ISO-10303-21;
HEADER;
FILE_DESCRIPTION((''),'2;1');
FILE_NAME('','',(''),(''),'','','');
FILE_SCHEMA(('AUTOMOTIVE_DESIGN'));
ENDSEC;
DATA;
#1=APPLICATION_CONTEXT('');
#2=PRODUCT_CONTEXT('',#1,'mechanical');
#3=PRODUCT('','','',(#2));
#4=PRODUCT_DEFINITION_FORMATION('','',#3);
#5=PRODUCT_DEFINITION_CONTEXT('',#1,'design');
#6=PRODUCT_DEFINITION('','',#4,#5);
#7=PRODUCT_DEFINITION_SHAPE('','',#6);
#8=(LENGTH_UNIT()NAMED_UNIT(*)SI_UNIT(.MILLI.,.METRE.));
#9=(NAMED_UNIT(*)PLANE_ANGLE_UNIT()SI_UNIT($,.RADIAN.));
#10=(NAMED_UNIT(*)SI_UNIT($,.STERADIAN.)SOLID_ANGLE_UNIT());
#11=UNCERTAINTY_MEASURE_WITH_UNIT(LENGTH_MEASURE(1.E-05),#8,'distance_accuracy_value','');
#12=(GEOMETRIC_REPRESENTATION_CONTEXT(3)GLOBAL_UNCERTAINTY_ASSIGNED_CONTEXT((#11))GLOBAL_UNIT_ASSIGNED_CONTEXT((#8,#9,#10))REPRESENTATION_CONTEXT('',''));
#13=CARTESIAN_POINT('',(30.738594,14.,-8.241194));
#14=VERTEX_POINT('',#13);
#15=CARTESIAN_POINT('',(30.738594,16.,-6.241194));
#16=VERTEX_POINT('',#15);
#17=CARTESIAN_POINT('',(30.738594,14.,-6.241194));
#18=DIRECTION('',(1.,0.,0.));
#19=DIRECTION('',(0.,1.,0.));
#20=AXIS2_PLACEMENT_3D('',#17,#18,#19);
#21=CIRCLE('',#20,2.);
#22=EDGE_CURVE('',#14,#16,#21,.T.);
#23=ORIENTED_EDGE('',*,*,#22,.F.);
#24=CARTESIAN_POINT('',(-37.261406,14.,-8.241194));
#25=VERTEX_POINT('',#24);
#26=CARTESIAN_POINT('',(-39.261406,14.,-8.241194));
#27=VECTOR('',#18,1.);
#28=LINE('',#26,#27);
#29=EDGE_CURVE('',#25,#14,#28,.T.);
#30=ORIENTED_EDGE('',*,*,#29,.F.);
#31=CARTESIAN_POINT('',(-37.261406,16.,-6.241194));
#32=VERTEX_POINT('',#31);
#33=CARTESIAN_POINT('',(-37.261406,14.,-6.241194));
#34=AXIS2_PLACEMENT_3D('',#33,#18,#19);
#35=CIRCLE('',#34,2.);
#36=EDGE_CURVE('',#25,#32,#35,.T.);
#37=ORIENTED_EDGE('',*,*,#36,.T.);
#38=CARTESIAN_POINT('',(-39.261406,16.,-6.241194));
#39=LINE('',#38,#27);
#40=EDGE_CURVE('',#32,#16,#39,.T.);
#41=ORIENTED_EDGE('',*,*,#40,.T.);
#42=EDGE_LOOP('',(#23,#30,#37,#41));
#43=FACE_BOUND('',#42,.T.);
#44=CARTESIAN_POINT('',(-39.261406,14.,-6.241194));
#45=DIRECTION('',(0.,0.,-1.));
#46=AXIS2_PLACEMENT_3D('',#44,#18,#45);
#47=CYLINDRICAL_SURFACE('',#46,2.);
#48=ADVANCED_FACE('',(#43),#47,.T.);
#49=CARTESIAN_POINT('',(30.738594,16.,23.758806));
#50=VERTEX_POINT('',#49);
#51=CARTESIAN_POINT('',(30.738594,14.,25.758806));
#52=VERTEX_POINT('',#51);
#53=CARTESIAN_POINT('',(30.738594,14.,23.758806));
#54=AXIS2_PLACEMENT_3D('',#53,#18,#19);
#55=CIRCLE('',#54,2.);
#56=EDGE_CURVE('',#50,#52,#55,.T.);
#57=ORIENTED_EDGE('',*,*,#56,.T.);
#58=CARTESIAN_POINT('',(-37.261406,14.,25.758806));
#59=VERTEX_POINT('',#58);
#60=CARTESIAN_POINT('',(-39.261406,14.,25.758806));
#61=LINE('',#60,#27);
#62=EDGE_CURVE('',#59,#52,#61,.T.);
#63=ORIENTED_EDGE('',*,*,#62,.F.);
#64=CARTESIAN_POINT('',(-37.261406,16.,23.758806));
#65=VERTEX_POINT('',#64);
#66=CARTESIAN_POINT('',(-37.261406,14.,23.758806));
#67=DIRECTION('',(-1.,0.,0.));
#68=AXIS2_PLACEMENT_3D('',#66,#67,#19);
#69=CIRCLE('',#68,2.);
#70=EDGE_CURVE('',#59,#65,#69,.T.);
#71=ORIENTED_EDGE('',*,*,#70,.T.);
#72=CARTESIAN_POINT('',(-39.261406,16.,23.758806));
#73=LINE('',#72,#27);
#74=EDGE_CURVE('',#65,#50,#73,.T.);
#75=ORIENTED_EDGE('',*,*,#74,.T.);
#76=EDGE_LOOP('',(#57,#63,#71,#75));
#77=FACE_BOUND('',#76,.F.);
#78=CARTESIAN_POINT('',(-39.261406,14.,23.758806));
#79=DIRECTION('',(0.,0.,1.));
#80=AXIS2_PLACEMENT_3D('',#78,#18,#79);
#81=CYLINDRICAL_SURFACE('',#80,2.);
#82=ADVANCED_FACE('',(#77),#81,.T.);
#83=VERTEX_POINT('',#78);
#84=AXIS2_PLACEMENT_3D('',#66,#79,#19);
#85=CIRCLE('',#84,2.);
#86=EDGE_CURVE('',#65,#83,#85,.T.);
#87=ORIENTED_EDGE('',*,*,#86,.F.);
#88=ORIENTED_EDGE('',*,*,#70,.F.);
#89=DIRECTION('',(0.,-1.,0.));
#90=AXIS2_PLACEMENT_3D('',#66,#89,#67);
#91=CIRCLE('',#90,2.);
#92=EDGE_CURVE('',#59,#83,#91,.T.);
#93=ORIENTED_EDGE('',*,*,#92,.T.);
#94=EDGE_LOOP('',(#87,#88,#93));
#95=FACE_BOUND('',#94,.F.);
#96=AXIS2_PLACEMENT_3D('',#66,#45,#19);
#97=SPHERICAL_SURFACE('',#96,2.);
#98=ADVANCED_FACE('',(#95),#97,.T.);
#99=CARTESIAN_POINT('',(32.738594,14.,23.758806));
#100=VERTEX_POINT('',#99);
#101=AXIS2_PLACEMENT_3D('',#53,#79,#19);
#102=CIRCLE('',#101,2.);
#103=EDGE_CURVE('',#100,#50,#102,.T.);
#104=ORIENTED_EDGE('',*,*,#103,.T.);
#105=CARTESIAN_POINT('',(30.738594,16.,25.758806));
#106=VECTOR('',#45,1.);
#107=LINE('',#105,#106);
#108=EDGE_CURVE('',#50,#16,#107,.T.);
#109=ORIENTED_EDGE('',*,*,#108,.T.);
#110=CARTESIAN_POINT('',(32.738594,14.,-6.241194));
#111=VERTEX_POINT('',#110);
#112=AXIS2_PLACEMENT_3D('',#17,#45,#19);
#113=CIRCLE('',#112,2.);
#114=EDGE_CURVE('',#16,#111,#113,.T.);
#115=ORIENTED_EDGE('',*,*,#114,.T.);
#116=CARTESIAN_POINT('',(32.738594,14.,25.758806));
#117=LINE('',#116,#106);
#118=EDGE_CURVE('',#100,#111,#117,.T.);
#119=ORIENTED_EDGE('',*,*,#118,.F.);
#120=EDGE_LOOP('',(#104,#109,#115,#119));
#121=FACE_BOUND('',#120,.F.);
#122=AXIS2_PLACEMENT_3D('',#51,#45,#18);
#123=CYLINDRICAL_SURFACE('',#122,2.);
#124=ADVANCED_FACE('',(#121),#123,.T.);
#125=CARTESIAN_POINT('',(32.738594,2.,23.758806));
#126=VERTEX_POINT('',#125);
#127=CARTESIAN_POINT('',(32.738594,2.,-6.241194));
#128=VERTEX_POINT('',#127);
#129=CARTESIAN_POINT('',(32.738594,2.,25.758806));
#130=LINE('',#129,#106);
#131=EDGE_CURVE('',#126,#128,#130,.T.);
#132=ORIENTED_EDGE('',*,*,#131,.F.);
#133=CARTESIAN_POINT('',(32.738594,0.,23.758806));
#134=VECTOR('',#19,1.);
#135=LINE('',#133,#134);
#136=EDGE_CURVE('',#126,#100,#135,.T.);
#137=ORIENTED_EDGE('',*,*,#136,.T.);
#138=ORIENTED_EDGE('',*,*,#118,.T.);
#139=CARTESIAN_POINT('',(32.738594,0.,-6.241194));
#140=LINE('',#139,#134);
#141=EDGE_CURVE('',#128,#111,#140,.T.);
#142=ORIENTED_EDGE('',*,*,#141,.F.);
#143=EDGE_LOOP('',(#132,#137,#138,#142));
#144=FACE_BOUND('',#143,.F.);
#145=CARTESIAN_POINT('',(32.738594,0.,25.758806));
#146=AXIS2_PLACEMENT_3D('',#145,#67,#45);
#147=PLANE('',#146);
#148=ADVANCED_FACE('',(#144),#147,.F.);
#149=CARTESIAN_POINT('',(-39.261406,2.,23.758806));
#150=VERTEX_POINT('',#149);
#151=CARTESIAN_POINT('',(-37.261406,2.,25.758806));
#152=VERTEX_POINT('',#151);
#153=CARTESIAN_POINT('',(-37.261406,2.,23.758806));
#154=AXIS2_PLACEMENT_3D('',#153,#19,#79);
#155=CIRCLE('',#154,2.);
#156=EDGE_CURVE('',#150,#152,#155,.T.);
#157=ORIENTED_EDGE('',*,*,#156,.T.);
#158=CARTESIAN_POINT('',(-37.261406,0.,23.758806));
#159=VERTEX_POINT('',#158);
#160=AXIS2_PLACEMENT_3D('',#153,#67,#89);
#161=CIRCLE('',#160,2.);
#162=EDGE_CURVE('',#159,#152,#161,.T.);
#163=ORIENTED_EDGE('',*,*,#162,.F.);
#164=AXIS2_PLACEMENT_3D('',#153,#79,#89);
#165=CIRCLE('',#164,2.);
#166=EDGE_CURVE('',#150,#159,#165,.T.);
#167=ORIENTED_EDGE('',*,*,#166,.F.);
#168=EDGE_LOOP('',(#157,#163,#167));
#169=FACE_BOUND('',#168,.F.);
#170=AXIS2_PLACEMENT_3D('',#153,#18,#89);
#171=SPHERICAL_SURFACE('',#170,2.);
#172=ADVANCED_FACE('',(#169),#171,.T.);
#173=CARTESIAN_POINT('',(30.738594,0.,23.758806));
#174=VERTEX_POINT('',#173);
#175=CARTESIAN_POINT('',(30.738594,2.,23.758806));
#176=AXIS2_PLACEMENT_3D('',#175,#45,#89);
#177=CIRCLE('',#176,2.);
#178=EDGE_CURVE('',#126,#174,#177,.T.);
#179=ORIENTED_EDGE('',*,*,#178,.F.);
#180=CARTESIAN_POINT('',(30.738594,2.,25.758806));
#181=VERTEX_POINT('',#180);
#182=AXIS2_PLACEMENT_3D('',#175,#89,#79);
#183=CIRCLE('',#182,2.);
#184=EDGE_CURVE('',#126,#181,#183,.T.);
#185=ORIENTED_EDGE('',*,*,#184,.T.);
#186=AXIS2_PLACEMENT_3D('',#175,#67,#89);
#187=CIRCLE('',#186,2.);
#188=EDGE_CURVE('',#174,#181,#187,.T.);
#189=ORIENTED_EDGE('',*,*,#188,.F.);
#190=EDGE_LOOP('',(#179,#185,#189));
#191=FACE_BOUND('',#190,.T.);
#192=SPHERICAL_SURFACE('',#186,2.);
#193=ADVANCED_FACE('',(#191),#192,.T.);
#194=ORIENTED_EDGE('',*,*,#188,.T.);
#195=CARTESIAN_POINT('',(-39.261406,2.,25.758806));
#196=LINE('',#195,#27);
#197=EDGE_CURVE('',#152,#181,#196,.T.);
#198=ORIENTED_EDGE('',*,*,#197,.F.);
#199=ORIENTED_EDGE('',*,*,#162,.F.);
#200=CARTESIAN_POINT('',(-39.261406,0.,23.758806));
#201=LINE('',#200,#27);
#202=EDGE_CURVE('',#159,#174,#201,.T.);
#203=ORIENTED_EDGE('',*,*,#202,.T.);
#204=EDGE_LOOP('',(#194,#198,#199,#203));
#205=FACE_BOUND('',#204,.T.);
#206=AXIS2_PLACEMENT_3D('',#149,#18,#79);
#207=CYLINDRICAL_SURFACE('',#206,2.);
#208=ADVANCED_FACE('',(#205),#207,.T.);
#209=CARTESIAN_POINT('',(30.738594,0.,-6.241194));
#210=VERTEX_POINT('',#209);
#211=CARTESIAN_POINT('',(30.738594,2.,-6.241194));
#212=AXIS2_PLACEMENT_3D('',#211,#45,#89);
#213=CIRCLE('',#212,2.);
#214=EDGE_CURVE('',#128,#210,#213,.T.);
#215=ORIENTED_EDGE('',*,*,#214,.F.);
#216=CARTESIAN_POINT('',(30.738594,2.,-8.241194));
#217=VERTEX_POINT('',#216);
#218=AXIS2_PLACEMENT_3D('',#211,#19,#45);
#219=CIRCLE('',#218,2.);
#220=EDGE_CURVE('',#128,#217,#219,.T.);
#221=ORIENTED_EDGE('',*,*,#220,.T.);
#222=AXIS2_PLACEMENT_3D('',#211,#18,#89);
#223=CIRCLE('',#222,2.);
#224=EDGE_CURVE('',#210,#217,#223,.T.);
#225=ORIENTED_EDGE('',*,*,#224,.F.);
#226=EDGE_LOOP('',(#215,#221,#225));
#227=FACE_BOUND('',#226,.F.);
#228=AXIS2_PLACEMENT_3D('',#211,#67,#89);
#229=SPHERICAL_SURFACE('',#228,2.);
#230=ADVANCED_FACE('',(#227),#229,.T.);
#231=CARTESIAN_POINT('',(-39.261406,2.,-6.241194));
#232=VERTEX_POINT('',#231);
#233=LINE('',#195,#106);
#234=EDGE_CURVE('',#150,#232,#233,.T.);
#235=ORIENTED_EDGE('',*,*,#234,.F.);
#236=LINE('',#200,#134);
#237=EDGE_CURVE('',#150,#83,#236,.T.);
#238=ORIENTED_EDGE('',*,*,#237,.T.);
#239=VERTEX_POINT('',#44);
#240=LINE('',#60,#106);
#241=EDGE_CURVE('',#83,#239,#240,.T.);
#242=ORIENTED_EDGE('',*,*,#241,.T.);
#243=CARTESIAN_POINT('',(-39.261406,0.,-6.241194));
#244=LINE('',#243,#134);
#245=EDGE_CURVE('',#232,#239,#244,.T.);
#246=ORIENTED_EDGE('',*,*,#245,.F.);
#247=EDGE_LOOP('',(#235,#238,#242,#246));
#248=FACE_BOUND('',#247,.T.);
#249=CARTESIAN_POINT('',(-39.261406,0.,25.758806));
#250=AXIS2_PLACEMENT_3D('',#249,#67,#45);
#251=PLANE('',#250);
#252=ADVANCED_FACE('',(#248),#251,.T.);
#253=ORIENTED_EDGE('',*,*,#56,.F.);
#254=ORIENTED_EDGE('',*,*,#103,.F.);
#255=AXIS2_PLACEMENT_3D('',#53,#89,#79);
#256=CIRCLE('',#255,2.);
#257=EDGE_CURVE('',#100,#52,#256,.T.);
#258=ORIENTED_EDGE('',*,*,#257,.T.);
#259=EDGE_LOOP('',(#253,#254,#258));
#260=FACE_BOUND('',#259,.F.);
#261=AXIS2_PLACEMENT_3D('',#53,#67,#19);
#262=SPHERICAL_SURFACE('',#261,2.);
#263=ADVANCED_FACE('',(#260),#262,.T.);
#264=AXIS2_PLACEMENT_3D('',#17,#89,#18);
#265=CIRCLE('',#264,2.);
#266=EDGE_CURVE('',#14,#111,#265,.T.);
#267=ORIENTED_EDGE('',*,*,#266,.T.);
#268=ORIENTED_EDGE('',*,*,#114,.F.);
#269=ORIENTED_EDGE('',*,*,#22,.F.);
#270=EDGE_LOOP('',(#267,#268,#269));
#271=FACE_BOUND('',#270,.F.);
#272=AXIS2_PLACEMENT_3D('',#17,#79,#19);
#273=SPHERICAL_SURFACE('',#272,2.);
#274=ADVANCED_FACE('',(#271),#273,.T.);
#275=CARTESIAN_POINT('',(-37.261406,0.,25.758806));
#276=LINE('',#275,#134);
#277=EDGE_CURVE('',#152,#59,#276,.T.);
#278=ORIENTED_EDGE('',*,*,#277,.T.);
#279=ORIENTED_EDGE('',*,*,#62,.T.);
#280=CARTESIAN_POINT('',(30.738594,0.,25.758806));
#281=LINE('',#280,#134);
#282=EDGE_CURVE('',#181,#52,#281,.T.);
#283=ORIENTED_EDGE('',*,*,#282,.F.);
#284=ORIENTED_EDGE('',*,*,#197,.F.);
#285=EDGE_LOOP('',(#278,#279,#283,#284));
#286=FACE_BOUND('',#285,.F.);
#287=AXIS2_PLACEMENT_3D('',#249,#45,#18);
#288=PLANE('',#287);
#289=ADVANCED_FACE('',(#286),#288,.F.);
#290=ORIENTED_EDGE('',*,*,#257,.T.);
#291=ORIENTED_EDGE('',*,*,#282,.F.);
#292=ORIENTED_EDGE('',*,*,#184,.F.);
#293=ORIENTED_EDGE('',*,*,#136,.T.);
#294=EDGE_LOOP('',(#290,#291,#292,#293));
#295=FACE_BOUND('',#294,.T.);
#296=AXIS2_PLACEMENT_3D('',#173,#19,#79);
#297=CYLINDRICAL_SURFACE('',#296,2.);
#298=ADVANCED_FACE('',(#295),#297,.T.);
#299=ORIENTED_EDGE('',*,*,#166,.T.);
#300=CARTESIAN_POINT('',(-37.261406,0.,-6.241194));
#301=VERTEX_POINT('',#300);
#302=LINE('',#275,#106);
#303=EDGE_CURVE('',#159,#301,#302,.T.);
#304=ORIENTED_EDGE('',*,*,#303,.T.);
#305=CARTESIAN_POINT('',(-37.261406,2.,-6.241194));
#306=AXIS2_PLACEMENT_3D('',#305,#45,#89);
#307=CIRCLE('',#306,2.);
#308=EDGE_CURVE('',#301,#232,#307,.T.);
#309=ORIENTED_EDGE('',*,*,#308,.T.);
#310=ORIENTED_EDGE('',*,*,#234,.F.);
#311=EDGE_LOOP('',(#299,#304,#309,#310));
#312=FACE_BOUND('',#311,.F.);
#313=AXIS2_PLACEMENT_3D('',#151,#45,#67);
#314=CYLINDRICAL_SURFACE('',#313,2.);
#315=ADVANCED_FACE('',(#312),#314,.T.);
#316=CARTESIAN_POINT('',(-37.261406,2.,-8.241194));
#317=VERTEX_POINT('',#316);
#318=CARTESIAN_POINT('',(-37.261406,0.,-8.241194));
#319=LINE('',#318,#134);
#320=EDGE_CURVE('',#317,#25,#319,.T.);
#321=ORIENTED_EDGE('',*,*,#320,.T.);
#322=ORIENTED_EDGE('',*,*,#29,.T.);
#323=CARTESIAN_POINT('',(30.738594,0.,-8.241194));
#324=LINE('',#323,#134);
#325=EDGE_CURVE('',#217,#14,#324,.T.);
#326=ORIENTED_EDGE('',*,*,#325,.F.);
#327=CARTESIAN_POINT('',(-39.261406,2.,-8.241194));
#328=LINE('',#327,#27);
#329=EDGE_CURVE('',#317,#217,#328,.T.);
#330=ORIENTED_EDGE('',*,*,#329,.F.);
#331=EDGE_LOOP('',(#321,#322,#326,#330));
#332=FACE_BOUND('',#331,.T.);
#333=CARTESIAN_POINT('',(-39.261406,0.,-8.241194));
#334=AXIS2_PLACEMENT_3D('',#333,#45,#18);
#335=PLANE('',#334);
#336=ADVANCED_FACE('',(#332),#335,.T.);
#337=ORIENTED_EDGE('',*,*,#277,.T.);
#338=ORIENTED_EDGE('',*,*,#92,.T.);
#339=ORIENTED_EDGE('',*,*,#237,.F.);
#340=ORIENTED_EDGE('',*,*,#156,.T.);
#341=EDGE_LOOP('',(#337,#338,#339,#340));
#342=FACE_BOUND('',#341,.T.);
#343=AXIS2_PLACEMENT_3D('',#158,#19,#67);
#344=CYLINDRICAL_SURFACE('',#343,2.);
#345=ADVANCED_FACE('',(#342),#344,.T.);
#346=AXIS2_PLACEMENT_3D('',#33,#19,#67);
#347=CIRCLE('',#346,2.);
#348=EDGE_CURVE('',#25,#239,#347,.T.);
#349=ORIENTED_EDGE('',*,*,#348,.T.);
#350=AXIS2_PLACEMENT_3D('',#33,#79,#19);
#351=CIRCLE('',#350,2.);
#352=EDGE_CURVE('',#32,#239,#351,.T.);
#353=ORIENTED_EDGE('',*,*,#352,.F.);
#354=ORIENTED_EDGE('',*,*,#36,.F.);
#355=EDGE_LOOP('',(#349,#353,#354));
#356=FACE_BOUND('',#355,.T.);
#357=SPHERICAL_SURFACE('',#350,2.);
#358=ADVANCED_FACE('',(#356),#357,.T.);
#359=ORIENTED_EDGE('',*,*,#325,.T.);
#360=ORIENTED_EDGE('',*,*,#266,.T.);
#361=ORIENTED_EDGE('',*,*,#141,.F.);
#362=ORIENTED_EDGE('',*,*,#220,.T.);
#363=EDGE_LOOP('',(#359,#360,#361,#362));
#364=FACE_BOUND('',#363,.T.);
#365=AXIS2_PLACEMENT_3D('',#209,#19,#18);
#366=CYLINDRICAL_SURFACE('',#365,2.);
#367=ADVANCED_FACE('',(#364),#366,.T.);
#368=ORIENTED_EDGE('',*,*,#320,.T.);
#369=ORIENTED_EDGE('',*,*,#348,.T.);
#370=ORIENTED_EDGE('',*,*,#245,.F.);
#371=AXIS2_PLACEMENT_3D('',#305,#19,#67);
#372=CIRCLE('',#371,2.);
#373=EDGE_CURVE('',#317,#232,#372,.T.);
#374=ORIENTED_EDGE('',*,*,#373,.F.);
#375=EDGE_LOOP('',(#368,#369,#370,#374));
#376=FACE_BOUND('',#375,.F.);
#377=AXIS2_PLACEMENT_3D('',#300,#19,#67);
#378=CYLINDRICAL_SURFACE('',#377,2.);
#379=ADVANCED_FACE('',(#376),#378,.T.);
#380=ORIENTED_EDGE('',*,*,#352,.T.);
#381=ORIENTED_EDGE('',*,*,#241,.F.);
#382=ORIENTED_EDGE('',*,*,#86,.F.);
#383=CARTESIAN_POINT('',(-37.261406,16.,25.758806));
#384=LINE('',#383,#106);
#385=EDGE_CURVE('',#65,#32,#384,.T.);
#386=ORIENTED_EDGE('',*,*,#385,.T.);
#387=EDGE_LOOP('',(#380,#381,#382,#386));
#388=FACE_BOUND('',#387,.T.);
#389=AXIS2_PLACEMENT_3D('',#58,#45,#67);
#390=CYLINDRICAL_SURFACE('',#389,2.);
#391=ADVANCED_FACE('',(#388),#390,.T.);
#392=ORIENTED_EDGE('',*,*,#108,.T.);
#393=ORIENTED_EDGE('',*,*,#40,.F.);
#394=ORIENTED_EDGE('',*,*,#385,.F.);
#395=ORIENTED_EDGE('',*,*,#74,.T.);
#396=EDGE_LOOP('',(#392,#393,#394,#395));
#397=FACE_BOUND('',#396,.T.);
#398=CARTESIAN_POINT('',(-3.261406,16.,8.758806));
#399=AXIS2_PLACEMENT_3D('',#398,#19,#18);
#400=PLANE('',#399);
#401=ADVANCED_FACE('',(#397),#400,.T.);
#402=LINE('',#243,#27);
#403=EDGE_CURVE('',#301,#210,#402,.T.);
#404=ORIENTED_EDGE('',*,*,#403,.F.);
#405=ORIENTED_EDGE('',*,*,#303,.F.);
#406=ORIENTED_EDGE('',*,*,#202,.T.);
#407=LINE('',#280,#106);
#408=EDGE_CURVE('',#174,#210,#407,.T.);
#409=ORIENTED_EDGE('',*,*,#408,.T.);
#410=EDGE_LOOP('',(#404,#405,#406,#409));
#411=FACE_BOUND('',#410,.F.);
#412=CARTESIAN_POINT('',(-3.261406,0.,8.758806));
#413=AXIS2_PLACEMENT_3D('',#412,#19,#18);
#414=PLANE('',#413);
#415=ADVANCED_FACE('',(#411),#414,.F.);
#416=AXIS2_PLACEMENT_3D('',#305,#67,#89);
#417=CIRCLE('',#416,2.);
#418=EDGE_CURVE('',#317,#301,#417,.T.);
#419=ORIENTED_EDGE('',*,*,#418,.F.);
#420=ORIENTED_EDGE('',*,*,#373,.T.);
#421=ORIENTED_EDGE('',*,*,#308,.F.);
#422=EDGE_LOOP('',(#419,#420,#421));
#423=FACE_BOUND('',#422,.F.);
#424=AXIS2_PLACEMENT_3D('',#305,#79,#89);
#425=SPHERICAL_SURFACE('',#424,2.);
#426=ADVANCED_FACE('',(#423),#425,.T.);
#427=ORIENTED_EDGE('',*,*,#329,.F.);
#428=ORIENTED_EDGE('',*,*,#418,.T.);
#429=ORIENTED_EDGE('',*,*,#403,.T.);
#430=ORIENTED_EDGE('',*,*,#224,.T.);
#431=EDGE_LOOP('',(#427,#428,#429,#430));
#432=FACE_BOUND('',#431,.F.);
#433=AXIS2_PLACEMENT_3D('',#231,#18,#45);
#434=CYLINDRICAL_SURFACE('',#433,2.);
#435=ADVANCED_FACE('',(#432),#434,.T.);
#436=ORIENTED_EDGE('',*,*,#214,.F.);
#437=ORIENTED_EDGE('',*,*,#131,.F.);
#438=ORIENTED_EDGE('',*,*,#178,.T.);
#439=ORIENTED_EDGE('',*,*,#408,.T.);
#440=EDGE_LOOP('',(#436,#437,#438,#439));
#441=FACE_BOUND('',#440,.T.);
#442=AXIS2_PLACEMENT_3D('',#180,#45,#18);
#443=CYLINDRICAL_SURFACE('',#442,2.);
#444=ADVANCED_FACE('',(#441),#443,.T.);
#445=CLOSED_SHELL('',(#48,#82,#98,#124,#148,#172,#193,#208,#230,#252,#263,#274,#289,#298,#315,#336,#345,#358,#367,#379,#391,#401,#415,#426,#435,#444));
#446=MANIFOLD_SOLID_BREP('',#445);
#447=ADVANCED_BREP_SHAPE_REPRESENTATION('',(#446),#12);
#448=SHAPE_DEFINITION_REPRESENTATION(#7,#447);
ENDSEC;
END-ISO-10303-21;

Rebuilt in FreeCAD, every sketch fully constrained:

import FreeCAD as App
import Part
import Sketcher
from FreeCAD import Vector

doc = App.newDocument("Part")
body = doc.addObject("PartDesign::Body", "Body")

# Sketch on XZ plane
sketch1 = body.newObject("Sketcher::SketchObject", "Sketch")
sketch1.AttachmentSupport = (doc.getObject("XZ_Plane"), [""])
sketch1.MapMode = "FlatFace"
sketch1.addGeometry([
    Part.LineSegment(Vector(-39, -8, 0), Vector(-39, 26, 0)),
    Part.LineSegment(Vector(-39, 26, 0), Vector(33, 26, 0)),
    Part.LineSegment(Vector(33, 26, 0), Vector(33, -8, 0)),
    Part.LineSegment(Vector(33, -8, 0), Vector(-39, -8, 0)),
], False)
sketch1.addConstraint([
    Sketcher.Constraint("Coincident", 0, 2, 1, 1),
    Sketcher.Constraint("Coincident", 1, 2, 2, 1),
    Sketcher.Constraint("Coincident", 2, 2, 3, 1),
    Sketcher.Constraint("Coincident", 3, 2, 0, 1),
    Sketcher.Constraint("Vertical", 0),
    Sketcher.Constraint("Horizontal", 1),
    Sketcher.Constraint("Vertical", 2),
    Sketcher.Constraint("Horizontal", 3),
    Sketcher.Constraint("DistanceX", 1, 1, 1, 2, 72.0),
    Sketcher.Constraint("DistanceY", 0, 1, 0, 2, 34.0),
    Sketcher.Constraint("DistanceX", 0, 2, -1, 1, 39.261406),
    Sketcher.Constraint("DistanceY", -1, 1, 0, 2, 25.758806),
])
pad1 = body.newObject("PartDesign::Pad", "Pad")
pad1.Profile = sketch1
pad1.Length = 16
pad1.Reversed = True
doc.recompute()

fillet = body.newObject("PartDesign::Fillet", "Fillet")
fillet.Base = (pad1, ["Edge1"])
fillet.UseAllEdges = True
fillet.Radius = 2

doc.recompute()
